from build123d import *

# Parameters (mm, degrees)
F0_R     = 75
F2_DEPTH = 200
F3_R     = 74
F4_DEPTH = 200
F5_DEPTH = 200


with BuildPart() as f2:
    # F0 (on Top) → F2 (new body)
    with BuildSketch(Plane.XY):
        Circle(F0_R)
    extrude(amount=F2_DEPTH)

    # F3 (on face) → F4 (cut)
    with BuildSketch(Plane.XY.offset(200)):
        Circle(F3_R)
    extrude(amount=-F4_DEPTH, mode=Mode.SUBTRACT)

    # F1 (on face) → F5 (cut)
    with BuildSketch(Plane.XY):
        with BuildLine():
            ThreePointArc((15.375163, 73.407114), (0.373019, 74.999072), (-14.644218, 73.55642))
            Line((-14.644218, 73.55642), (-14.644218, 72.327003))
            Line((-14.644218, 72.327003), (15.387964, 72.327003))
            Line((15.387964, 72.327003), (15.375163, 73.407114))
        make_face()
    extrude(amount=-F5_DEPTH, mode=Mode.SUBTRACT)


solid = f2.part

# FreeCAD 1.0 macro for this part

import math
import FreeCAD as App
import Part
import Sketcher
Q = App.Units.Quantity

doc = App.newDocument("Part")
body = doc.addObject("PartDesign::Body", "Body")

# Sketch on XY plane
sketch1 = body.newObject("Sketcher::SketchObject", "Sketch")
sketch1.AttachmentSupport = (doc.getObject("XY_Plane"), [""])
sketch1.MapMode = "FlatFace"
sketch1.addGeometry(Part.Circle(App.Vector(0, 0, 0), App.Vector(0, 0, 1), 75), False)
sketch1.addConstraint([
    Sketcher.Constraint("Coincident", 0, 3, -1, 1),
    Sketcher.Constraint("Diameter", 0, Q("150 mm")),
])
pad1 = body.newObject("PartDesign::Pad", "Pad")
pad1.Profile = sketch1
pad1.Length = 200

# Sketch on XY plane
sketch2 = body.newObject("Sketcher::SketchObject", "Sketch001")
sketch2.AttachmentSupport = (doc.getObject("XY_Plane"), [""])
sketch2.MapMode = "FlatFace"
sketch2.AttachmentOffset = App.Placement(App.Vector(0, 0, 200), App.Rotation())
sketch2.addGeometry(Part.Circle(App.Vector(0, 0, 0), App.Vector(0, 0, 1), 74), False)
sketch2.addConstraint([
    Sketcher.Constraint("Coincident", 0, 3, -1, 1),
    Sketcher.Constraint("Diameter", 0, Q("148 mm")),
])
pocket1 = body.newObject("PartDesign::Pocket", "Pocket")
pocket1.Profile = sketch2
pocket1.Length = 200

# Sketch on XY plane
sketch3 = body.newObject("Sketcher::SketchObject", "Sketch002")
sketch3.AttachmentSupport = (doc.getObject("XY_Plane"), [""])
sketch3.MapMode = "FlatFace"
sketch3.addGeometry([
    Part.ArcOfCircle(Part.Circle(App.Vector(0, -0.00003, 0), App.Vector(0, 0, 1), 75.000029), math.radians(78.170378), math.radians(101.259688)),
    Part.LineSegment(App.Vector(-14.644218, 73.55642, 0), App.Vector(-14.644218, 72.327003, 0)),
    Part.LineSegment(App.Vector(-14.644218, 72.327003, 0), App.Vector(15.387964, 72.327003, 0)),
    Part.LineSegment(App.Vector(15.387964, 72.327003, 0), App.Vector(15.375163, 73.407114, 0)),
], False)
sketch3.addConstraint([
    Sketcher.Constraint("Coincident", 0, 2, 1, 1),
    Sketcher.Constraint("Coincident", 1, 2, 2, 1),
    Sketcher.Constraint("Coincident", 2, 2, 3, 1),
    Sketcher.Constraint("Coincident", 3, 2, 0, 1),
    Sketcher.Constraint("Vertical", 1),
    Sketcher.Constraint("Horizontal", 2),
    Sketcher.Constraint("PointOnObject", 0, 3, -2),
    Sketcher.Constraint("Radius", 0, Q("75.000029 mm")),
    Sketcher.Constraint("DistanceX", 2, 1, 2, 2, Q("30.032182 mm")),
    Sketcher.Constraint("DistanceX", 3, 2, 2, 2, Q("0.012801 mm")),
    Sketcher.Constraint("DistanceY", 1, 2, 1, 1, Q("1.229417 mm")),
    Sketcher.Constraint("DistanceX", 0, 2, -1, 1, Q("14.644218 mm")),
    Sketcher.Constraint("DistanceY", -1, 1, 0, 2, Q("73.55642 mm")),
])
pocket2 = body.newObject("PartDesign::Pocket", "Pocket001")
pocket2.Profile = sketch3
pocket2.Length = 200

doc.recompute()
